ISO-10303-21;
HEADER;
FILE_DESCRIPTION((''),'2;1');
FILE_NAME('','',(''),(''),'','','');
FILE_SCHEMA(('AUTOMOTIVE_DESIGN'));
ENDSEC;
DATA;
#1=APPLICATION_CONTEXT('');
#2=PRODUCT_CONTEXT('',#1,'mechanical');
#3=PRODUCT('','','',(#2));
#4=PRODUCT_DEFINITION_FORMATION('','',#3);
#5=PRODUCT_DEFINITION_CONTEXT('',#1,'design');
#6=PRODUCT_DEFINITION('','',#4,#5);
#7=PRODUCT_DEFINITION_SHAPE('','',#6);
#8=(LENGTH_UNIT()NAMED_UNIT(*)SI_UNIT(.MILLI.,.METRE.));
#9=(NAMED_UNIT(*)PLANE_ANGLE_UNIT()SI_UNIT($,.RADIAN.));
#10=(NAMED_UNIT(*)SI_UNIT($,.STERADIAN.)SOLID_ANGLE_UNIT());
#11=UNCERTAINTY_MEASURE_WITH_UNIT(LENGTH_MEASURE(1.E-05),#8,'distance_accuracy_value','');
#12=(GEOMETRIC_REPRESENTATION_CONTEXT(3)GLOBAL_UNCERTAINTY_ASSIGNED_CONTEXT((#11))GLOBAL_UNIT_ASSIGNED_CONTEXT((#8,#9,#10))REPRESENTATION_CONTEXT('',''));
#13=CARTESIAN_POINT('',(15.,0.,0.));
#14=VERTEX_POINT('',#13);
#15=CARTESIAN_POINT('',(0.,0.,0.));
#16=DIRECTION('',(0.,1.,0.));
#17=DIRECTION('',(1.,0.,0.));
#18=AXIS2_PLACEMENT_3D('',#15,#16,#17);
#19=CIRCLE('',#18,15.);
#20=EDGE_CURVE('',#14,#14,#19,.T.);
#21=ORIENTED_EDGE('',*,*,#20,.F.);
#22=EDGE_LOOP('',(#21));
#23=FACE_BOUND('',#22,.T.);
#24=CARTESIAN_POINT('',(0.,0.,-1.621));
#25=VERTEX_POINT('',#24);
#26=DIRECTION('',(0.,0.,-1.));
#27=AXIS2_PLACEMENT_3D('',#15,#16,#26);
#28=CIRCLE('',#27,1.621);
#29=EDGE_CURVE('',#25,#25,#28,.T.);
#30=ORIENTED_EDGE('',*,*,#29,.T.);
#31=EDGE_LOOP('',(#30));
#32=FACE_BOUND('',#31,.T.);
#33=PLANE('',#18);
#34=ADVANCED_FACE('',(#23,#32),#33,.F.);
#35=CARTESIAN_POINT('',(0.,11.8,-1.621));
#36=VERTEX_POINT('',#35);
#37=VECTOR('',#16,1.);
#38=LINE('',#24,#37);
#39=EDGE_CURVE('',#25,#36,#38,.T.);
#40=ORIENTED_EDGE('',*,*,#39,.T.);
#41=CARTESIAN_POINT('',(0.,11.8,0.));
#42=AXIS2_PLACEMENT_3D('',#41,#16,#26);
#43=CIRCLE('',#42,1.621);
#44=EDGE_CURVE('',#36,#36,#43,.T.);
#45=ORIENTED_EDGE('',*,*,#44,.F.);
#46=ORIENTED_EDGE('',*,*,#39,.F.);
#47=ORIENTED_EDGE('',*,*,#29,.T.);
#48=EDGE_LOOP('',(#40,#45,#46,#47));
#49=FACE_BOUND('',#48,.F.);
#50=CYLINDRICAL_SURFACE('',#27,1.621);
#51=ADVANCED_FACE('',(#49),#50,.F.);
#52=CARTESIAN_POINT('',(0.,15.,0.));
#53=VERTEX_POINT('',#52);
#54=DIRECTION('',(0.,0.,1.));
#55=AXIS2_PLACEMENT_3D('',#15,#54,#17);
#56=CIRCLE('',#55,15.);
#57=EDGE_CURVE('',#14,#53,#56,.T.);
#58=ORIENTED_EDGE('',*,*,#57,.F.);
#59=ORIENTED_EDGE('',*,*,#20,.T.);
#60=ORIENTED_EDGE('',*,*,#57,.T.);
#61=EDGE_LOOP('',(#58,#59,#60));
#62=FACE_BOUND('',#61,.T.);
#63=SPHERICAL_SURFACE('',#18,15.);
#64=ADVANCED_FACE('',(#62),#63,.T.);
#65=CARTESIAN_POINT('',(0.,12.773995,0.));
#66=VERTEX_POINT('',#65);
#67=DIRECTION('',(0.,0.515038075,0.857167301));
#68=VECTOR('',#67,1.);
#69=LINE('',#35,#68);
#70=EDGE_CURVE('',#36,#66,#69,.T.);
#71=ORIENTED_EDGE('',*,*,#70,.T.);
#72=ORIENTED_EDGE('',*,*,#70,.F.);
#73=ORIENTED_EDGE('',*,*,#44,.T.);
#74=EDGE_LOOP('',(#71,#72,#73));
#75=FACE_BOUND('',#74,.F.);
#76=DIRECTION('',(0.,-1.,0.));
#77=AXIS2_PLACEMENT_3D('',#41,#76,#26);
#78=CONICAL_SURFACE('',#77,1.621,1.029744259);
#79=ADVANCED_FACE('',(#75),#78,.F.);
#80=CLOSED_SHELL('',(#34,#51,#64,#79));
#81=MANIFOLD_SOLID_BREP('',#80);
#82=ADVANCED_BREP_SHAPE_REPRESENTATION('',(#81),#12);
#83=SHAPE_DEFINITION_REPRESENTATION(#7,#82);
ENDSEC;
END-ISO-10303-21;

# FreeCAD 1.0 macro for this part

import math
import FreeCAD as App
import Part
import Sketcher

V = App.Vector

doc = App.newDocument("Part")
params = doc.addObject("Spreadsheet::Sheet", "Params")
for row, (alias, value) in enumerate([
    ("sketch1_radius", "15 mm"),
    ("revolution_angle", "360 deg"),
    ("hole_diameter", "3.242 mm"),
    ("hole_depth", "11.8 mm"),
], start=1):
    params.set(f"A{row}", alias)
    params.set(f"B{row}", "=" + value)
    params.setAlias(f"B{row}", alias)

body = doc.addObject("PartDesign::Body", "Body")

# Sketch on XY plane
sketch1 = body.newObject("Sketcher::SketchObject", "Sketch")
sketch1.AttachmentSupport = (doc.getObject("XY_Plane"), [""])
sketch1.MapMode = "FlatFace"
sketch1.addGeometry([
    Part.LineSegment(V(0, 15, 0), V(0, 0, 0)),
    Part.LineSegment(V(0, 0, 0), V(15, 0, 0)),
    Part.ArcOfCircle(Part.Circle(V(0, 0, 0), V(0, 0, 1), 15), math.radians(0), math.radians(90)),
], False)
sketch1.addConstraint([
    Sketcher.Constraint("Coincident", 0, 2, 1, 1),
    Sketcher.Constraint("Coincident", 1, 2, 2, 1),
    Sketcher.Constraint("Coincident", 2, 2, 0, 1),
    Sketcher.Constraint("Vertical", 0),
    Sketcher.Constraint("Horizontal", 1),
    Sketcher.Constraint("Coincident", 2, 3, -1, 1),
    Sketcher.Constraint("Coincident", 0, 2, -1, 1),
    Sketcher.Constraint("Radius", 2, 15.0),
])
sketch1.setExpression("Constraints[7]", "Params.sketch1_radius")
revolution = body.newObject("PartDesign::Revolution", "Revolution")
revolution.Profile = sketch1
revolution.ReferenceAxis = (sketch1, ["V_Axis"])
revolution.setExpression("Angle", "Params.revolution_angle")

# Sketch on XZ plane
sketch2 = body.newObject("Sketcher::SketchObject", "Sketch001")
sketch2.AttachmentSupport = (doc.getObject("XZ_Plane"), [""])
sketch2.MapMode = "FlatFace"
sketch2.addGeometry(Part.Circle(V(0, 0, 0), V(0, 0, 1), 1.621), False)
sketch2.addConstraint([
    Sketcher.Constraint("Coincident", 0, 3, -1, 1),
    Sketcher.Constraint("Diameter", 0, 3.242),
])
doc.recompute()
hole = body.newObject("PartDesign::Hole", "Hole")
hole.Profile = sketch2
hole.ThreadType = "None"
hole.setExpression("Diameter", "Params.hole_diameter")
hole.DepthType = "Dimension"
hole.setExpression("Depth", "Params.hole_depth")
hole.DrillPoint = "Angled"
hole.DrillPointAngle = 118

doc.recompute()
